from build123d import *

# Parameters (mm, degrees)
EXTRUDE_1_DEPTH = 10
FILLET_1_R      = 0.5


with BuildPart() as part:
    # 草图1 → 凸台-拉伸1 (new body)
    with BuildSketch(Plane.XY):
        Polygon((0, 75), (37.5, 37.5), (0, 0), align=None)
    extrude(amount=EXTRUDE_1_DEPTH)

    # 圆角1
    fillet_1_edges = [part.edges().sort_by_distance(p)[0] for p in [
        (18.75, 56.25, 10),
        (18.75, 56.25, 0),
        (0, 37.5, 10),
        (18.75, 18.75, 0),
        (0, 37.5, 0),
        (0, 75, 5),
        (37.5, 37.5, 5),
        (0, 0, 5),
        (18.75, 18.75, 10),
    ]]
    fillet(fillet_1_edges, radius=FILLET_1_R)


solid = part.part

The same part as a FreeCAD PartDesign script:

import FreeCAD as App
import Part
import Sketcher
Q = App.Units.Quantity


def add_polygon(sketch, points):
    """Adds a closed chain of lines whose ends are joined by coincident constraints."""
    first, n = sketch.GeometryCount, len(points)
    for a, b in zip(points, points[1:] + points[:1]):
        sketch.addGeometry(Part.LineSegment(App.Vector(*a, 0), App.Vector(*b, 0)), False)
    for i in range(n):
        sketch.addConstraint(Sketcher.Constraint("Coincident", first + i, 2, first + (i + 1) % n, 1))

doc = App.newDocument("Part")
body = doc.addObject("PartDesign::Body", "Body")

sketch1 = body.newObject("Sketcher::SketchObject", "Sketch")
sketch1.AttachmentSupport = (doc.getObject("XY_Plane"), [""])
sketch1.MapMode = "FlatFace"
add_polygon(sketch1, [(38, 38), (0, 75), (0, 0)])
sketch1.addConstraint([
    Sketcher.Constraint("Vertical", 1),
    Sketcher.Constraint("Coincident", 1, 2, -1, 1),
    Sketcher.Constraint("Perpendicular", 0, 2),
    Sketcher.Constraint("Equal", 0, 2),
    Sketcher.Constraint("DistanceY", 1, 2, 1, 1, Q("75 mm")),
])
pad1 = body.newObject("PartDesign::Pad", "Pad")
pad1.Profile = sketch1
pad1.Length = 10
doc.recompute()

fillet = body.newObject("PartDesign::Fillet", "Fillet")
fillet.Base = (pad1, ["Edge1"])
fillet.UseAllEdges = True
fillet.Radius = 0.5

doc.recompute()
